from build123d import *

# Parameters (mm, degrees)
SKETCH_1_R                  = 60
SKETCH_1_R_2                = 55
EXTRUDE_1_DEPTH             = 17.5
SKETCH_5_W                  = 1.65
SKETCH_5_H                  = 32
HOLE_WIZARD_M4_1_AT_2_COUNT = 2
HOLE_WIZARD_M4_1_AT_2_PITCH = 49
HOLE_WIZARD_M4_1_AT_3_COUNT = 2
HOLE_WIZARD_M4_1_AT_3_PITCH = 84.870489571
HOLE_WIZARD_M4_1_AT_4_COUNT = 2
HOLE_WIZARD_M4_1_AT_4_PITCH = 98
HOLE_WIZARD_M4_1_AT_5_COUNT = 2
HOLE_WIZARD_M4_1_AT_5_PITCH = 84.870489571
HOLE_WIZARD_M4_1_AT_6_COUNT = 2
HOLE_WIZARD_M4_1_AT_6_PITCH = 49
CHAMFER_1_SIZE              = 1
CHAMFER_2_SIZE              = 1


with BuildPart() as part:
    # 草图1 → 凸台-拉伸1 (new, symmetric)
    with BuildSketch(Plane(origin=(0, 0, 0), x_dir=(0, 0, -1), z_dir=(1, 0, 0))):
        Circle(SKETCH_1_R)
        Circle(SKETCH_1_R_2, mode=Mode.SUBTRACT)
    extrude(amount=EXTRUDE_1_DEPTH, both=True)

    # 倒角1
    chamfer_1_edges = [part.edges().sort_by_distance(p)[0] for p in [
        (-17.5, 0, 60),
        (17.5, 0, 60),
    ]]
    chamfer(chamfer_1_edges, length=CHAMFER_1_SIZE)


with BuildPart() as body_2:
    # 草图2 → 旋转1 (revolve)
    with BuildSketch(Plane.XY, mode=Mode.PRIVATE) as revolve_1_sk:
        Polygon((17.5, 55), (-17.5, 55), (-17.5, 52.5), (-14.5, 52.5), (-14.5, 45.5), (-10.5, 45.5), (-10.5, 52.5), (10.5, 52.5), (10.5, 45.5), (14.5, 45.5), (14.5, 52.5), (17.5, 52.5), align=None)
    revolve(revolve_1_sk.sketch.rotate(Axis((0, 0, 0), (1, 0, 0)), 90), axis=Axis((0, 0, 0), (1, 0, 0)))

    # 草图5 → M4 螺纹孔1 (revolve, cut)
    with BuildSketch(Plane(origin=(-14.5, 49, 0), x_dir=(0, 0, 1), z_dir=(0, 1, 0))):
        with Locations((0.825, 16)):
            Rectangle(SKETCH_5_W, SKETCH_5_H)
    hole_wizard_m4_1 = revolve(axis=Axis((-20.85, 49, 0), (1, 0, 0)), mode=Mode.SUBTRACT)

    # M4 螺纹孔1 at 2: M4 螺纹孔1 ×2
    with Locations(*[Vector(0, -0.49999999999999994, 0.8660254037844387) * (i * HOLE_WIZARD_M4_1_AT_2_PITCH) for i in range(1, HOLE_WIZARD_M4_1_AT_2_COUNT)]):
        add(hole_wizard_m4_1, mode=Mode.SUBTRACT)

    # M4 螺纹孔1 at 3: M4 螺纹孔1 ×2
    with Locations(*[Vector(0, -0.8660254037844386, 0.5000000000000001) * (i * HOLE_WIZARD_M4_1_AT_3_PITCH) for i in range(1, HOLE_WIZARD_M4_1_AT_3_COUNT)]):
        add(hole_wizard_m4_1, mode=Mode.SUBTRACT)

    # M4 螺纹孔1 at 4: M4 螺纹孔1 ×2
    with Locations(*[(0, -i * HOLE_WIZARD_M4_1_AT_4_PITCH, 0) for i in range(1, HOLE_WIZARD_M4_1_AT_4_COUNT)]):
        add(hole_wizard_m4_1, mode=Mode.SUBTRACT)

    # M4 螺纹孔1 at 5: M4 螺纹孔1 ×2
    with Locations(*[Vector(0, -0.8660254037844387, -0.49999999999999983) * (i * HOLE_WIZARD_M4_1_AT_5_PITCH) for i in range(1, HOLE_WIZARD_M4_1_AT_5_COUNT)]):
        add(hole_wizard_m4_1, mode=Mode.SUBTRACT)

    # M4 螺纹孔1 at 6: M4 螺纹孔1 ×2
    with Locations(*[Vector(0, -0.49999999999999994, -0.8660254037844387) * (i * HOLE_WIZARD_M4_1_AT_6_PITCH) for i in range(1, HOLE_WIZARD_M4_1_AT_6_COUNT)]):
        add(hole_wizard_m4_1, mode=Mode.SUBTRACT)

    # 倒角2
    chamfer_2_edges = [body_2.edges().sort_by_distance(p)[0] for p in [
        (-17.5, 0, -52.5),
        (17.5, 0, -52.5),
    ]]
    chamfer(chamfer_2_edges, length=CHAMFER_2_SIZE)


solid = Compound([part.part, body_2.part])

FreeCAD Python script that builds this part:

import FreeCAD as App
import Part
import Sketcher

V = App.Vector


def edges_at(feature, points):
    """Names of the edges that pass closest to the given points."""
    edges = feature.Shape.Edges
    near = lambda p: min(range(len(edges)), key=lambda i: edges[i].distToShape(Part.Vertex(*p))[0])
    return sorted({f"Edge{near(p) + 1}" for p in points})

doc = App.newDocument("Part")
body = doc.addObject("PartDesign::Body", "Body")

sketch1 = body.newObject("Sketcher::SketchObject", "Sketch")
sketch1.AttachmentSupport = (doc.getObject("YZ_Plane"), [""])
sketch1.MapMode = "FlatFace"
sketch1.addGeometry([
    Part.Circle(V(0, 0, 0), V(0, 0, 1), 60),
    Part.Circle(V(0, 0, 0), V(0, 0, 1), 55),
], False)
sketch1.addConstraint([
    Sketcher.Constraint("Coincident", 0, 3, -1, 1),
    Sketcher.Constraint("Coincident", 1, 3, -1, 1),
    Sketcher.Constraint("Diameter", 0, 120.0),
    Sketcher.Constraint("Diameter", 1, 110.0),
])
pad1 = body.newObject("PartDesign::Pad", "Pad")
pad1.Profile = sketch1
pad1.Length = 35
pad1.Midplane = True
doc.recompute()

chamfer = body.newObject("PartDesign::Chamfer", "Chamfer")
chamfer.Base = (pad1, edges_at(pad1, [(-17.5, 0, 60), (17.5, 0, 60)]))
chamfer.Size = 1
body2 = doc.addObject("PartDesign::Body", "Body001")

sketch2 = body2.newObject("Sketcher::SketchObject", "Sketch001")
sketch2.AttachmentSupport = (doc.getObject("XY_Plane001"), [""])
sketch2.MapMode = "FlatFace"
sketch2.addGeometry([
    Part.LineSegment(V(17.5, 55, 0), V(-17.5, 55, 0)),
    Part.LineSegment(V(-17.5, 55, 0), V(-17.5, 52.5, 0)),
    Part.LineSegment(V(-17.5, 52.5, 0), V(-14.5, 52.5, 0)),
    Part.LineSegment(V(-14.5, 52.5, 0), V(-14.5, 45.5, 0)),
    Part.LineSegment(V(-14.5, 45.5, 0), V(-10.5, 45.5, 0)),
    Part.LineSegment(V(-10.5, 45.5, 0), V(-10.5, 52.5, 0)),
    Part.LineSegment(V(-10.5, 52.5, 0), V(10.5, 52.5, 0)),
    Part.LineSegment(V(10.5, 52.5, 0), V(10.5, 45.5, 0)),
    Part.LineSegment(V(10.5, 45.5, 0), V(14.5, 45.5, 0)),
    Part.LineSegment(V(14.5, 45.5, 0), V(14.5, 52.5, 0)),
    Part.LineSegment(V(14.5, 52.5, 0), V(17.5, 52.5, 0)),
    Part.LineSegment(V(17.5, 52.5, 0), V(17.5, 55, 0)),
], False)
sketch2.addConstraint([
    Sketcher.Constraint("Coincident", 0, 2, 1, 1),
    Sketcher.Constraint("Coincident", 1, 2, 2, 1),
    Sketcher.Constraint("Coincident", 2, 2, 3, 1),
    Sketcher.Constraint("Coincident", 3, 2, 4, 1),
    Sketcher.Constraint("Coincident", 4, 2, 5, 1),
    Sketcher.Constraint("Coincident", 5, 2, 6, 1),
    Sketcher.Constraint("Coincident", 6, 2, 7, 1),
    Sketcher.Constraint("Coincident", 7, 2, 8, 1),
    Sketcher.Constraint("Coincident", 8, 2, 9, 1),
    Sketcher.Constraint("Coincident", 9, 2, 10, 1),
    Sketcher.Constraint("Coincident", 10, 2, 11, 1),
    Sketcher.Constraint("Coincident", 11, 2, 0, 1),
    Sketcher.Constraint("Horizontal", 0),
    Sketcher.Constraint("Vertical", 1),
    Sketcher.Constraint("Horizontal", 2),
    Sketcher.Constraint("Vertical", 3),
    Sketcher.Constraint("Horizontal", 4),
    Sketcher.Constraint("Vertical", 5),
    Sketcher.Constraint("Horizontal", 6),
    Sketcher.Constraint("Vertical", 7),
    Sketcher.Constraint("Horizontal", 8),
    Sketcher.Constraint("Vertical", 9),
    Sketcher.Constraint("Horizontal", 10),
    Sketcher.Constraint("Vertical", 11),
    Sketcher.Constraint("Symmetric", 4, 2, 7, 2, -2),
    Sketcher.Constraint("Symmetric", 2, 2, 9, 2, -2),
    Sketcher.Constraint("Horizontal", 2, 2, 5, 2),
    Sketcher.Constraint("Equal", 2, 10),
    Sketcher.Constraint("DistanceX", 0, 2, 0, 1, 35.0),
    Sketcher.Constraint("DistanceX", 2, 1, 2, 2, 3.0),
    Sketcher.Constraint("DistanceX", 4, 1, 4, 2, 4.0),
    Sketcher.Constraint("DistanceY", 3, 2, 3, 1, 7.0),
    Sketcher.Constraint("DistanceY", 1, 2, 1, 1, 2.5),
    Sketcher.Constraint("DistanceY", -1, 1, 0, 2, 55.0),
])
revolution = body2.newObject("PartDesign::Revolution", "Revolution")
revolution.Profile = sketch2
revolution.ReferenceAxis = (sketch2, ["H_Axis"])
revolution.Angle = 360

sketch3 = body2.newObject("Sketcher::SketchObject", "Sketch002")
sketch3.AttachmentSupport = (doc.getObject("XZ_Plane001"), [""])
sketch3.MapMode = "FlatFace"
sketch3.AttachmentOffset = App.Placement(V(0, 0, -49), App.Rotation())
sketch3.addGeometry([
    Part.LineSegment(V(17.5, 0, 0), V(-14.5, 0, 0)),
    Part.LineSegment(V(-14.5, 0, 0), V(-14.5, 1.6, 0)),
    Part.LineSegment(V(-14.5, 1.6, 0), V(17.5, 1.6, 0)),
    Part.LineSegment(V(17.5, 1.6, 0), V(17.5, 0, 0)),
], False)
sketch3.addConstraint([
    Sketcher.Constraint("Coincident", 0, 2, 1, 1),
    Sketcher.Constraint("Coincident", 1, 2, 2, 1),
    Sketcher.Constraint("Coincident", 2, 2, 3, 1),
    Sketcher.Constraint("Coincident", 3, 2, 0, 1),
    Sketcher.Constraint("Horizontal", 0),
    Sketcher.Constraint("Vertical", 1),
    Sketcher.Constraint("Horizontal", 2),
    Sketcher.Constraint("Vertical", 3),
    Sketcher.Constraint("PointOnObject", 0, 2, -1),
    Sketcher.Constraint("DistanceX", 0, 2, 0, 1, 32.0),
    Sketcher.Constraint("DistanceY", 1, 1, 1, 2, 1.65),
    Sketcher.Constraint("DistanceX", 0, 2, -1, 1, 14.5),
])
groove = body2.newObject("PartDesign::Groove", "Groove")
groove.Profile = sketch3
groove.ReferenceAxis = (sketch3, ["H_Axis"])
groove.Angle = 360
doc.recompute()

datumline = body2.newObject("PartDesign::Line", "DatumLine")
datumline.Placement = App.Placement(V(0, 0, 0), App.Rotation(V(0, 0, 1), V(0, -0.5, 0.866025404)))
linearpattern = body2.newObject("PartDesign::LinearPattern", "LinearPattern")
linearpattern.Originals = [groove]
linearpattern.Direction = (datumline, [""])
linearpattern.Mode = "offset"
linearpattern.Offset = 49
linearpattern.Occurrences = 2
body2.Tip = linearpattern
doc.recompute()

datumline2 = body2.newObject("PartDesign::Line", "DatumLine001")
datumline2.Placement = App.Placement(V(0, 0, 0), App.Rotation(V(0, 0, 1), V(0, -0.866025404, 0.5)))
linearpattern2 = body2.newObject("PartDesign::LinearPattern", "LinearPattern001")
linearpattern2.Originals = [groove]
linearpattern2.Direction = (datumline2, [""])
linearpattern2.Mode = "offset"
linearpattern2.Offset = 84.87049
linearpattern2.Occurrences = 2
body2.Tip = linearpattern2
doc.recompute()

linearpattern3 = body2.newObject("PartDesign::LinearPattern", "LinearPattern002")
linearpattern3.Originals = [groove]
linearpattern3.Direction = (doc.getObject("Y_Axis001"), [""])
linearpattern3.Mode = "offset"
linearpattern3.Offset = 98
linearpattern3.Occurrences = 2
linearpattern3.Reversed = True
body2.Tip = linearpattern3
doc.recompute()

datumline3 = body2.newObject("PartDesign::Line", "DatumLine002")
datumline3.Placement = App.Placement(V(0, 0, 0), App.Rotation(V(0, 0, 1), V(0, -0.866025404, -0.5)))
linearpattern4 = body2.newObject("PartDesign::LinearPattern", "LinearPattern003")
linearpattern4.Originals = [groove]
linearpattern4.Direction = (datumline3, [""])
linearpattern4.Mode = "offset"
linearpattern4.Offset = 84.87049
linearpattern4.Occurrences = 2
body2.Tip = linearpattern4
doc.recompute()

datumline4 = body2.newObject("PartDesign::Line", "DatumLine003")
datumline4.Placement = App.Placement(V(0, 0, 0), App.Rotation(V(0, 0, 1), V(0, -0.5, -0.866025404)))
linearpattern5 = body2.newObject("PartDesign::LinearPattern", "LinearPattern004")
linearpattern5.Originals = [groove]
linearpattern5.Direction = (datumline4, [""])
linearpattern5.Mode = "offset"
linearpattern5.Offset = 49
linearpattern5.Occurrences = 2
body2.Tip = linearpattern5
doc.recompute()

chamfer2 = body2.newObject("PartDesign::Chamfer", "Chamfer001")
chamfer2.Base = (linearpattern5, edges_at(linearpattern5, [(-17.5, 0, -52.5), (17.5, 0, -52.5)]))
chamfer2.Size = 1

doc.recompute()
